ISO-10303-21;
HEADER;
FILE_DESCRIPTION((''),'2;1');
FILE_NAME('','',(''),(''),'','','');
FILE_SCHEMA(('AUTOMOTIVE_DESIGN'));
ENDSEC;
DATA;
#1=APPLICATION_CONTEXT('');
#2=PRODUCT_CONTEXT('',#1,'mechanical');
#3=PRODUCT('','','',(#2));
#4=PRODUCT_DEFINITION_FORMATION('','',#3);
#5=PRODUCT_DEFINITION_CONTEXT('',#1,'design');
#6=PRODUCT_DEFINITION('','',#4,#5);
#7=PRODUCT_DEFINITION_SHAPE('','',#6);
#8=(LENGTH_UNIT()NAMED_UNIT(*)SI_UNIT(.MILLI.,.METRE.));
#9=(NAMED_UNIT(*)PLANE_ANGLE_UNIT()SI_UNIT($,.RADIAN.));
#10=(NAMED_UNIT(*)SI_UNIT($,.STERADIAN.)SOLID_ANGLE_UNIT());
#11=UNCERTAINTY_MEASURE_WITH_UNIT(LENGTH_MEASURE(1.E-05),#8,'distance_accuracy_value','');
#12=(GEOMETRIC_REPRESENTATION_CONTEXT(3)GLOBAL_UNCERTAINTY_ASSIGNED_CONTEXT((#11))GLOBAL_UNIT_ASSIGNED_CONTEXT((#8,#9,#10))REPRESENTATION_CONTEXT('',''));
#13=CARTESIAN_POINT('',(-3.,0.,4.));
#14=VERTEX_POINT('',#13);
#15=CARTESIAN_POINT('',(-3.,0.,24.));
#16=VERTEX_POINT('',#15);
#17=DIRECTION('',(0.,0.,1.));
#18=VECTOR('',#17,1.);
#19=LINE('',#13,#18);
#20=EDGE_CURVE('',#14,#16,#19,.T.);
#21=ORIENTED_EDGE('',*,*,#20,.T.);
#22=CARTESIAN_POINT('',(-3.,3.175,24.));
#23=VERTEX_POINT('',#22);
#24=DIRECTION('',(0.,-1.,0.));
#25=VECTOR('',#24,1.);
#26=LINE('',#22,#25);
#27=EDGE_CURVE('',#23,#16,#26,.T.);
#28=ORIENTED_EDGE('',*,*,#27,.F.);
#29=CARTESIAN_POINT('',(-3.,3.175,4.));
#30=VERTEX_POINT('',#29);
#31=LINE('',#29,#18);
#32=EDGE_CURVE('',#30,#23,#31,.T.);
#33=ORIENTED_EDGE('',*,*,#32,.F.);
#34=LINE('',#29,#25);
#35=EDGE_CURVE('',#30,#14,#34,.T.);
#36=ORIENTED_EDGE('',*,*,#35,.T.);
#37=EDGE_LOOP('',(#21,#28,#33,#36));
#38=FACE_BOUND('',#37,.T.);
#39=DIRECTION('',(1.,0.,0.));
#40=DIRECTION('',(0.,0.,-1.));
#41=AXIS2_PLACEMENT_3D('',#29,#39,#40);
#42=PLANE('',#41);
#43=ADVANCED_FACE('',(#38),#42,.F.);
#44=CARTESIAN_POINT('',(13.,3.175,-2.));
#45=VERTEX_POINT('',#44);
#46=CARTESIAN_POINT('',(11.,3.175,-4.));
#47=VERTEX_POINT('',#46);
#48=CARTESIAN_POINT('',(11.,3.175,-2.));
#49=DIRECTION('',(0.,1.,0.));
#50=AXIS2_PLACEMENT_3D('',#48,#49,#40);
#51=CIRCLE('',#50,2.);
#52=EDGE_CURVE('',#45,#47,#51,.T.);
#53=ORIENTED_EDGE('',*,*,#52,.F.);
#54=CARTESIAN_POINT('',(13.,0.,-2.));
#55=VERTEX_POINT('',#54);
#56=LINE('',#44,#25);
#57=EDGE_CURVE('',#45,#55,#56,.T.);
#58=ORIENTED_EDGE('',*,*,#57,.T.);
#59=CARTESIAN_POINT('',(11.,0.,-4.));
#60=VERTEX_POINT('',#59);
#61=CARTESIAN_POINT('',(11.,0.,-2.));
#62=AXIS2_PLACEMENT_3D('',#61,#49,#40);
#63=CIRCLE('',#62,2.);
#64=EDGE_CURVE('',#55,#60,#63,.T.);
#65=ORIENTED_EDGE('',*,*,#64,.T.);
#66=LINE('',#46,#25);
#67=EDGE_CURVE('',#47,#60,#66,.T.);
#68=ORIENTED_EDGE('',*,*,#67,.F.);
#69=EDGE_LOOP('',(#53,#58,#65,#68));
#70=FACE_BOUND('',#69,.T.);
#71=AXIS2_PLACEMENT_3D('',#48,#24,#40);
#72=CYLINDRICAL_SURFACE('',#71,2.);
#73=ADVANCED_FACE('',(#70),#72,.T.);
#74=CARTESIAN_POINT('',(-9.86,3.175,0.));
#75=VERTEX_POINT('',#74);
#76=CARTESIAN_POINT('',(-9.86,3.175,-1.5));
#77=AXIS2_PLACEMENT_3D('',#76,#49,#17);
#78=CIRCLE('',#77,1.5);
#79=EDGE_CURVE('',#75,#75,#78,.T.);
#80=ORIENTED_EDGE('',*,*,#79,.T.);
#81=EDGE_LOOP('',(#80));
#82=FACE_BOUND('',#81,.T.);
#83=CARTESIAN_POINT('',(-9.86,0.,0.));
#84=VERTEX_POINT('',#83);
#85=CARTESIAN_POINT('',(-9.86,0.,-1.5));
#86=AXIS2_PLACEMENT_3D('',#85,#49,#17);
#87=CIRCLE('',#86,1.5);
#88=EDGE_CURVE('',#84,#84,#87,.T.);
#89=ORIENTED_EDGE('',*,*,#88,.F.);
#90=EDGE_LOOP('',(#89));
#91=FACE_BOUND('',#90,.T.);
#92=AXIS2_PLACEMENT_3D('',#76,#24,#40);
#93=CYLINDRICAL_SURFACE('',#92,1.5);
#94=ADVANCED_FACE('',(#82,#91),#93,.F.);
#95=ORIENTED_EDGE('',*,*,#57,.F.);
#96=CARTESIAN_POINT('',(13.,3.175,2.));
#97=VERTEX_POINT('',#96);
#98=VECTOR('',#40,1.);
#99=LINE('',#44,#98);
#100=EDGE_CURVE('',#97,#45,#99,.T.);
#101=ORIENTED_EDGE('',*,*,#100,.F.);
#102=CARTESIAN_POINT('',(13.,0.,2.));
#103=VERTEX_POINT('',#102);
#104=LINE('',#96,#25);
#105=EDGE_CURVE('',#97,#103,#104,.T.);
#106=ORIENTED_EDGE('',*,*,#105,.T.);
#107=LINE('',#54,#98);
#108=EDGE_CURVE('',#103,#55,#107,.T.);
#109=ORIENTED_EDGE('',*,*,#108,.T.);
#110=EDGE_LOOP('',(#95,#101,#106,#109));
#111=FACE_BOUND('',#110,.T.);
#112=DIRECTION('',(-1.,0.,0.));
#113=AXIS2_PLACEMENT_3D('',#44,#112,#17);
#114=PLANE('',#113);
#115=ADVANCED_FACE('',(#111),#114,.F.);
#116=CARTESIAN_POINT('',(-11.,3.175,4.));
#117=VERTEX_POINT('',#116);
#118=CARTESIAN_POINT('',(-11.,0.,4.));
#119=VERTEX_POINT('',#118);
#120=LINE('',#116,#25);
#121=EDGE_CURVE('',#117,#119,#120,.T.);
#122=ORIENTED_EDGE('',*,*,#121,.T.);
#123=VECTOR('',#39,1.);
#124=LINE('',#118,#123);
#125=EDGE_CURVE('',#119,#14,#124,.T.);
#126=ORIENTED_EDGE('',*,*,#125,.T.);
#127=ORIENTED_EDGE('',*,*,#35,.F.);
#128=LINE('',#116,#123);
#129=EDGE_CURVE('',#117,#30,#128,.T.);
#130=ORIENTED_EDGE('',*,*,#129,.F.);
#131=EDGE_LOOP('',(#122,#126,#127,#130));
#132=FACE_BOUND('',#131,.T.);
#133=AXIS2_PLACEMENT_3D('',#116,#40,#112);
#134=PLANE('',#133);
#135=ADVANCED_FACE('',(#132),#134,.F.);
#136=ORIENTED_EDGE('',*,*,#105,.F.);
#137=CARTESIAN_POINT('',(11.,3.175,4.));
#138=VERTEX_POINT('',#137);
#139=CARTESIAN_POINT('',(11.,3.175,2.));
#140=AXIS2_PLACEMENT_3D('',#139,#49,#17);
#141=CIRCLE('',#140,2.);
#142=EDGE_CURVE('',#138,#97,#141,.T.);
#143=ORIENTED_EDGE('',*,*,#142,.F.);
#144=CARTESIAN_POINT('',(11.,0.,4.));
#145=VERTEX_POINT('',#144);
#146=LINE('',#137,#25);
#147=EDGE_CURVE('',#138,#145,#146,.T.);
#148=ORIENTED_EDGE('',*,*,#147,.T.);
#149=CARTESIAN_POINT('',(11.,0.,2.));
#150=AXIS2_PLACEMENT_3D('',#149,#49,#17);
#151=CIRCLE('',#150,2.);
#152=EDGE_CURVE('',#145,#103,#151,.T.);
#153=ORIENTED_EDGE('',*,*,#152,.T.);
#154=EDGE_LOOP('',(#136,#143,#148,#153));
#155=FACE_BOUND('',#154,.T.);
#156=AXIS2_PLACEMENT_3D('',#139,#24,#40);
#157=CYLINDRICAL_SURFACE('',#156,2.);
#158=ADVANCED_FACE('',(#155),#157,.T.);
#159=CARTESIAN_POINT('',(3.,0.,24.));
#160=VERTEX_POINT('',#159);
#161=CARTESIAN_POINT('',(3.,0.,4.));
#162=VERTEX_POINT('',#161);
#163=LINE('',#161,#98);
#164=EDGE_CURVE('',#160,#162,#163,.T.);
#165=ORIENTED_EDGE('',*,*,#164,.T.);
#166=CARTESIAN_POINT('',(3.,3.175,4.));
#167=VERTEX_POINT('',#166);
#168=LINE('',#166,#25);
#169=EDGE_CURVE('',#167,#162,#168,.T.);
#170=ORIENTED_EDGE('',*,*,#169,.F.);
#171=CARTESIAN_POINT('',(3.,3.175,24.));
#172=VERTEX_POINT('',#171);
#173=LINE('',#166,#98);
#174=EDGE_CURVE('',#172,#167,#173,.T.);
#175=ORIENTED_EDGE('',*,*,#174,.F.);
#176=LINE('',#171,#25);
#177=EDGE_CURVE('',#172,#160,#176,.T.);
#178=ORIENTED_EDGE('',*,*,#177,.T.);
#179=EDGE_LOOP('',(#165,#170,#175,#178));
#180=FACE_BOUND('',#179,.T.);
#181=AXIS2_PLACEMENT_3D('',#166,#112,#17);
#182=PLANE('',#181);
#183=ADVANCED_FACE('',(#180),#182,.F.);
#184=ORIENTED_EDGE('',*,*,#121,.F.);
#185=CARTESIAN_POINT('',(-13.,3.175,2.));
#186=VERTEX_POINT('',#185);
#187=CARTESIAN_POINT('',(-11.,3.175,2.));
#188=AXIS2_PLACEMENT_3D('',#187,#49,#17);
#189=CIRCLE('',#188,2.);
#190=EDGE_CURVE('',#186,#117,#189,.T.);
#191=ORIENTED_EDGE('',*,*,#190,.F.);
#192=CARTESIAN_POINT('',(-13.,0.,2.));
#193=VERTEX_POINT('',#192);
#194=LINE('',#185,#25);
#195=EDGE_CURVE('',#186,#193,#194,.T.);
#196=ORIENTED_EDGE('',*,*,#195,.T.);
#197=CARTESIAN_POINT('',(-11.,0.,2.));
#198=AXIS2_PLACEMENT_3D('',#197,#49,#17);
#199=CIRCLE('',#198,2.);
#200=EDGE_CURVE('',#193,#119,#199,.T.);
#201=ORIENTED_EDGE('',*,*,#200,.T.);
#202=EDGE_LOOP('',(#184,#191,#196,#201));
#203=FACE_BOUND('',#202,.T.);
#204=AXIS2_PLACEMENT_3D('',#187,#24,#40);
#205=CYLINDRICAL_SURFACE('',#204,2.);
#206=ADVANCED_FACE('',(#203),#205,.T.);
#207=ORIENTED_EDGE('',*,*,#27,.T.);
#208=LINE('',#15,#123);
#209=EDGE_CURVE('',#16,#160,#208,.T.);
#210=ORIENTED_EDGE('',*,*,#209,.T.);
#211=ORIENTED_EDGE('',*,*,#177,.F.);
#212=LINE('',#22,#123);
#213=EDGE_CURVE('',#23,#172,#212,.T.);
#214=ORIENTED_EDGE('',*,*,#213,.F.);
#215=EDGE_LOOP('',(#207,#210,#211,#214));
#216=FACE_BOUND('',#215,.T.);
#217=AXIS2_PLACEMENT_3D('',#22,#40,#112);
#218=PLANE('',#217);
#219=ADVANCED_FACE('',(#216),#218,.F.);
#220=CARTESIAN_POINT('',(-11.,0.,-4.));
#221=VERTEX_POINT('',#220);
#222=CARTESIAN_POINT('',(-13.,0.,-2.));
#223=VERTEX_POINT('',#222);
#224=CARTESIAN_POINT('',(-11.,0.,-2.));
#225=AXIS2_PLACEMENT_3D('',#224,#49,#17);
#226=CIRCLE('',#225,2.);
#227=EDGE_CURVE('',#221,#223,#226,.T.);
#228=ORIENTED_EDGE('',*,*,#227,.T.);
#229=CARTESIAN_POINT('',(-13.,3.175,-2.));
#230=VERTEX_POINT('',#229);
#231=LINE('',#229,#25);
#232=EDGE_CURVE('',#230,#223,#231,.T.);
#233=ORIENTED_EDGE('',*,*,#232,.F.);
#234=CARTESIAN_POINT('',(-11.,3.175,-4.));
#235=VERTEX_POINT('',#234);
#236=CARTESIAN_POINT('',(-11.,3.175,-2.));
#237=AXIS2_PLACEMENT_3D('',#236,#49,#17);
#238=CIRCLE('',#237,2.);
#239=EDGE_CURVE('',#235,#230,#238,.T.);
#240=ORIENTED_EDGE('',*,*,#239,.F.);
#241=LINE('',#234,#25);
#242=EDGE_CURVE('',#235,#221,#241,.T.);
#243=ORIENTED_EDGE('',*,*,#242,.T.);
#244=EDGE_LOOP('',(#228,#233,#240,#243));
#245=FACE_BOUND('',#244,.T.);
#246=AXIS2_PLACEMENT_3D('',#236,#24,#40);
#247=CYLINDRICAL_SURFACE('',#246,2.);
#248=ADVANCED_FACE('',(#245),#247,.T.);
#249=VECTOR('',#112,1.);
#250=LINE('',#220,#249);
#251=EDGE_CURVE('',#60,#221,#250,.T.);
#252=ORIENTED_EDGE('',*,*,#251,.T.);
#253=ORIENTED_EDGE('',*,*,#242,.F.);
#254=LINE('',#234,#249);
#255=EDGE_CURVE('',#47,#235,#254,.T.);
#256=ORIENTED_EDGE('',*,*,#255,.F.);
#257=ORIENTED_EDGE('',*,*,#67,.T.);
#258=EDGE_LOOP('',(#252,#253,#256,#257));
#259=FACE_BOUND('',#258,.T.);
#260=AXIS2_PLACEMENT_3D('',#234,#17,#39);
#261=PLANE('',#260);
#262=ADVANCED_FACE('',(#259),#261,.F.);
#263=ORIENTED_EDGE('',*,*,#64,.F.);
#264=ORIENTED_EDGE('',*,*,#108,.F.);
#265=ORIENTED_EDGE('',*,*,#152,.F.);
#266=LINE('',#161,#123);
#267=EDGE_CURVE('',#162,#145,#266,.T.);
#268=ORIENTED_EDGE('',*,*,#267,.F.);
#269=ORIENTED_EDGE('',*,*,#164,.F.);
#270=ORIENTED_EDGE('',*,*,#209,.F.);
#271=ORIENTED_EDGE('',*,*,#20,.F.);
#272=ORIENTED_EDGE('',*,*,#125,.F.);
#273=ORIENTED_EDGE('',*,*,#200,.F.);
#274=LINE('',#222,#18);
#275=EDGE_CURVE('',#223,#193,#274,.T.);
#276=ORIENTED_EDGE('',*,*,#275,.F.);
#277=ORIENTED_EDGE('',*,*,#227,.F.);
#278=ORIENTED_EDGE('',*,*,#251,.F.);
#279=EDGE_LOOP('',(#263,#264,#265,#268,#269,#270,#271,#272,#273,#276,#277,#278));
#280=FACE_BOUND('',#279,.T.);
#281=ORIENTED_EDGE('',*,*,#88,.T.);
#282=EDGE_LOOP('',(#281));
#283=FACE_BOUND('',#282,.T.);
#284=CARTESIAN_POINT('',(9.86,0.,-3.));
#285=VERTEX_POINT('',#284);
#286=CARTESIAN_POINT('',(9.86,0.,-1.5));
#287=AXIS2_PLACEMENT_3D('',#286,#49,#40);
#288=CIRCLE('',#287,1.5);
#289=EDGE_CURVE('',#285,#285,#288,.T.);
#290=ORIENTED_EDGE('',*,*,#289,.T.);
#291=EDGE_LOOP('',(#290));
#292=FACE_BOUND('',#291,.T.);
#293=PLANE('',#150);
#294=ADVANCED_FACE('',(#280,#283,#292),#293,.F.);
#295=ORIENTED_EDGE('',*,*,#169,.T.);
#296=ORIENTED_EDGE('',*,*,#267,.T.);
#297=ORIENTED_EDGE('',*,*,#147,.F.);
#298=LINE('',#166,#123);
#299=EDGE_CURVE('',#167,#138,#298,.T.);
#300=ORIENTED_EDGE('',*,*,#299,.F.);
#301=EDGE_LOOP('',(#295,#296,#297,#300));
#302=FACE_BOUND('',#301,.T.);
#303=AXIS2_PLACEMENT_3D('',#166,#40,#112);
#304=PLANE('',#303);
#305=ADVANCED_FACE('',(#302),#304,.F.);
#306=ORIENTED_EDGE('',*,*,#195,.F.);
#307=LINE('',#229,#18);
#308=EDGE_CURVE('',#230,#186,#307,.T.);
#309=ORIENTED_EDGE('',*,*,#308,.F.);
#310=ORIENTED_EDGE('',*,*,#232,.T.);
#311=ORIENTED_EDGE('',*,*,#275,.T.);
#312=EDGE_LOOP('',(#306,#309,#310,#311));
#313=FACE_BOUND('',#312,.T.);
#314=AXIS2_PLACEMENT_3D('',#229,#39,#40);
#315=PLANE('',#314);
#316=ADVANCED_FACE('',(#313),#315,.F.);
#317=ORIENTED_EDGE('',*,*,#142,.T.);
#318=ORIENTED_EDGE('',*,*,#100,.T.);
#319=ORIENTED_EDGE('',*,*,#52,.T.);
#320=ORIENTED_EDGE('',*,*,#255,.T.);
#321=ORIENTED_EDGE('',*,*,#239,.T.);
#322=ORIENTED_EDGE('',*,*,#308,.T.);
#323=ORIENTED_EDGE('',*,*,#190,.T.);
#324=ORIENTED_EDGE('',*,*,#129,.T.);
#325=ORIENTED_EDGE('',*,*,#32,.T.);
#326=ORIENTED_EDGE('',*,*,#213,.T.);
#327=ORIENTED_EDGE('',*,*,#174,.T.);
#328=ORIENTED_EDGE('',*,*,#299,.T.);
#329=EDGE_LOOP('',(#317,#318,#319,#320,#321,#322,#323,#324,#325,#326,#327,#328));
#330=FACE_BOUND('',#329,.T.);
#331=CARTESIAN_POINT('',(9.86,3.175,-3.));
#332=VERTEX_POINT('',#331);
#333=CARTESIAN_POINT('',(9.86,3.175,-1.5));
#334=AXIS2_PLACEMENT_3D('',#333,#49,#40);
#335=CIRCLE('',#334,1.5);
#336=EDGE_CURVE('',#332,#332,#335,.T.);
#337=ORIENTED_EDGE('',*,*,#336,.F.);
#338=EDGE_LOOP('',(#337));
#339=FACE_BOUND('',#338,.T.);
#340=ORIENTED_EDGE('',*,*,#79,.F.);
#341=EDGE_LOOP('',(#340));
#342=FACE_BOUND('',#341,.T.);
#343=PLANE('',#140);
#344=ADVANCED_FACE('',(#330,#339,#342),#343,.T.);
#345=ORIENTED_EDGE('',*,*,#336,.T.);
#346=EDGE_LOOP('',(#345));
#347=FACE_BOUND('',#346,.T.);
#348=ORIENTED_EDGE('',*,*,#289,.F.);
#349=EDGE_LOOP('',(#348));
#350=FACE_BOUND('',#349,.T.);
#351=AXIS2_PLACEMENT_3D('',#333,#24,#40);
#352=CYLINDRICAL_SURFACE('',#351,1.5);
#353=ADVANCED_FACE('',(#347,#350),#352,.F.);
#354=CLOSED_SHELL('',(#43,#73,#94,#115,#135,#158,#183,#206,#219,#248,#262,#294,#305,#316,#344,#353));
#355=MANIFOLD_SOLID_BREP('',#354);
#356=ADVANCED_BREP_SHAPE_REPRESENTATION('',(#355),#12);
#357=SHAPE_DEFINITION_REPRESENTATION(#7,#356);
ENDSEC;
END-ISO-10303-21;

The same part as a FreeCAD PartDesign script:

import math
import FreeCAD as App
import Part
import Sketcher

doc = App.newDocument("Part")
params = doc.addObject("Spreadsheet::Sheet", "Params")
for row, (alias, value) in enumerate([
    ("sketch1_diameter", "3 mm"),
    ("sketch1_radius", "2 mm"),
    ("sketch1_width", "22 mm"),
    ("sketch1_width2", "8 mm"),
    ("sketch1_height", "4 mm"),
    ("pad1_length", "3.175 mm"),
], start=1):
    params.set(f"A{row}", alias)
    params.set(f"B{row}", "=" + value)
    params.setAlias(f"B{row}", alias)

body = doc.addObject("PartDesign::Body", "Body")

# Sketch on XZ plane
sketch1 = body.newObject("Sketcher::SketchObject", "Sketch")
sketch1.AttachmentSupport = (doc.getObject("XZ_Plane"), [""])
sketch1.MapMode = "FlatFace"
sketch1.addGeometry([
    Part.LineSegment(App.Vector(11, -4, 0), App.Vector(-11, -4, 0)),  # 0
    Part.ArcOfCircle(Part.Circle(App.Vector(-11, -2, 0), App.Vector(0, 0, 1), 2), math.radians(-180), math.radians(-90)),  # 1
    Part.LineSegment(App.Vector(-13, -2, 0), App.Vector(-13, 2, 0)),  # 2
    Part.ArcOfCircle(Part.Circle(App.Vector(-11, 2, 0), App.Vector(0, 0, 1), 2), math.radians(90), math.radians(180)),  # 3
    Part.LineSegment(App.Vector(-11, 4, 0), App.Vector(-3, 4, 0)),  # 4
    Part.LineSegment(App.Vector(-3, 4, 0), App.Vector(-3, 24, 0)),  # 5
    Part.LineSegment(App.Vector(-3, 24, 0), App.Vector(3, 24, 0)),  # 6
    Part.LineSegment(App.Vector(3, 24, 0), App.Vector(3, 4, 0)),  # 7
    Part.LineSegment(App.Vector(3, 4, 0), App.Vector(11, 4, 0)),  # 8
    Part.ArcOfCircle(Part.Circle(App.Vector(11, 2, 0), App.Vector(0, 0, 1), 2), math.radians(0), math.radians(90)),  # 9
    Part.LineSegment(App.Vector(13, 2, 0), App.Vector(13, -2, 0)),  # 10
    Part.ArcOfCircle(Part.Circle(App.Vector(11, -2, 0), App.Vector(0, 0, 1), 2), math.radians(-90), math.radians(0)),  # 11
    Part.Circle(App.Vector(9.9, -1.5, 0), App.Vector(0, 0, 1), 1.5),  # 12
    Part.Circle(App.Vector(-9.9, -1.5, 0), App.Vector(0, 0, 1), 1.5),  # 13
], False)
sketch1.addConstraint([
    Sketcher.Constraint("Tangent", 0, 2, 1, 2),
    Sketcher.Constraint("Tangent", 1, 1, 2, 1),
    Sketcher.Constraint("Tangent", 2, 2, 3, 2),
    Sketcher.Constraint("Tangent", 3, 1, 4, 1),
    Sketcher.Constraint("Coincident", 4, 2, 5, 1),
    Sketcher.Constraint("Coincident", 5, 2, 6, 1),
    Sketcher.Constraint("Coincident", 6, 2, 7, 1),
    Sketcher.Constraint("Coincident", 7, 2, 8, 1),
    Sketcher.Constraint("Tangent", 8, 2, 9, 2),
    Sketcher.Constraint("Tangent", 9, 1, 10, 1),
    Sketcher.Constraint("Tangent", 10, 2, 11, 2),
    Sketcher.Constraint("Tangent", 11, 1, 0, 1),
    Sketcher.Constraint("Horizontal", 0),
    Sketcher.Constraint("Vertical", 2),
    Sketcher.Constraint("Horizontal", 4),
    Sketcher.Constraint("Vertical", 5),
    Sketcher.Constraint("Horizontal", 6),
    Sketcher.Constraint("Vertical", 7),
    Sketcher.Constraint("Horizontal", 8),
    Sketcher.Constraint("Vertical", 10),
    Sketcher.Constraint("Equal", 1, 3),
    Sketcher.Constraint("Equal", 3, 9),
    Sketcher.Constraint("Equal", 9, 11),
    Sketcher.Constraint("Equal", 12, 13),
    Sketcher.Constraint("Symmetric", 1, 3, 9, 3, -1, 1),
    Sketcher.Constraint("Symmetric", 12, 3, 13, 3, -2),
    Sketcher.Constraint("Symmetric", 4, 2, 7, 2, -2),
    Sketcher.Constraint("Diameter", 12, 3.0),
    Sketcher.Constraint("Radius", 1, 2.0),
    Sketcher.Constraint("DistanceX", 0, 2, 0, 1, 22.0),
    Sketcher.Constraint("DistanceX", 4, 1, 4, 2, 8.0),
    Sketcher.Constraint("DistanceY", 2, 1, 2, 2, 4.0),
    Sketcher.Constraint("DistanceY", 5, 1, 5, 2, 20.0),
    Sketcher.Constraint("DistanceY", 12, 3, -1, 1, 1.5),
    Sketcher.Constraint("DistanceX", -1, 1, 12, 3, 9.86),
])
sketch1.setExpression("Constraints[27]", "Params.sketch1_diameter")
sketch1.setExpression("Constraints[28]", "Params.sketch1_radius")
sketch1.setExpression("Constraints[29]", "Params.sketch1_width")
sketch1.setExpression("Constraints[30]", "Params.sketch1_width2")
sketch1.setExpression("Constraints[31]", "Params.sketch1_height")
pad1 = body.newObject("PartDesign::Pad", "Pad")
pad1.Profile = sketch1
pad1.setExpression("Length", "Params.pad1_length")
pad1.Reversed = True

doc.recompute()
